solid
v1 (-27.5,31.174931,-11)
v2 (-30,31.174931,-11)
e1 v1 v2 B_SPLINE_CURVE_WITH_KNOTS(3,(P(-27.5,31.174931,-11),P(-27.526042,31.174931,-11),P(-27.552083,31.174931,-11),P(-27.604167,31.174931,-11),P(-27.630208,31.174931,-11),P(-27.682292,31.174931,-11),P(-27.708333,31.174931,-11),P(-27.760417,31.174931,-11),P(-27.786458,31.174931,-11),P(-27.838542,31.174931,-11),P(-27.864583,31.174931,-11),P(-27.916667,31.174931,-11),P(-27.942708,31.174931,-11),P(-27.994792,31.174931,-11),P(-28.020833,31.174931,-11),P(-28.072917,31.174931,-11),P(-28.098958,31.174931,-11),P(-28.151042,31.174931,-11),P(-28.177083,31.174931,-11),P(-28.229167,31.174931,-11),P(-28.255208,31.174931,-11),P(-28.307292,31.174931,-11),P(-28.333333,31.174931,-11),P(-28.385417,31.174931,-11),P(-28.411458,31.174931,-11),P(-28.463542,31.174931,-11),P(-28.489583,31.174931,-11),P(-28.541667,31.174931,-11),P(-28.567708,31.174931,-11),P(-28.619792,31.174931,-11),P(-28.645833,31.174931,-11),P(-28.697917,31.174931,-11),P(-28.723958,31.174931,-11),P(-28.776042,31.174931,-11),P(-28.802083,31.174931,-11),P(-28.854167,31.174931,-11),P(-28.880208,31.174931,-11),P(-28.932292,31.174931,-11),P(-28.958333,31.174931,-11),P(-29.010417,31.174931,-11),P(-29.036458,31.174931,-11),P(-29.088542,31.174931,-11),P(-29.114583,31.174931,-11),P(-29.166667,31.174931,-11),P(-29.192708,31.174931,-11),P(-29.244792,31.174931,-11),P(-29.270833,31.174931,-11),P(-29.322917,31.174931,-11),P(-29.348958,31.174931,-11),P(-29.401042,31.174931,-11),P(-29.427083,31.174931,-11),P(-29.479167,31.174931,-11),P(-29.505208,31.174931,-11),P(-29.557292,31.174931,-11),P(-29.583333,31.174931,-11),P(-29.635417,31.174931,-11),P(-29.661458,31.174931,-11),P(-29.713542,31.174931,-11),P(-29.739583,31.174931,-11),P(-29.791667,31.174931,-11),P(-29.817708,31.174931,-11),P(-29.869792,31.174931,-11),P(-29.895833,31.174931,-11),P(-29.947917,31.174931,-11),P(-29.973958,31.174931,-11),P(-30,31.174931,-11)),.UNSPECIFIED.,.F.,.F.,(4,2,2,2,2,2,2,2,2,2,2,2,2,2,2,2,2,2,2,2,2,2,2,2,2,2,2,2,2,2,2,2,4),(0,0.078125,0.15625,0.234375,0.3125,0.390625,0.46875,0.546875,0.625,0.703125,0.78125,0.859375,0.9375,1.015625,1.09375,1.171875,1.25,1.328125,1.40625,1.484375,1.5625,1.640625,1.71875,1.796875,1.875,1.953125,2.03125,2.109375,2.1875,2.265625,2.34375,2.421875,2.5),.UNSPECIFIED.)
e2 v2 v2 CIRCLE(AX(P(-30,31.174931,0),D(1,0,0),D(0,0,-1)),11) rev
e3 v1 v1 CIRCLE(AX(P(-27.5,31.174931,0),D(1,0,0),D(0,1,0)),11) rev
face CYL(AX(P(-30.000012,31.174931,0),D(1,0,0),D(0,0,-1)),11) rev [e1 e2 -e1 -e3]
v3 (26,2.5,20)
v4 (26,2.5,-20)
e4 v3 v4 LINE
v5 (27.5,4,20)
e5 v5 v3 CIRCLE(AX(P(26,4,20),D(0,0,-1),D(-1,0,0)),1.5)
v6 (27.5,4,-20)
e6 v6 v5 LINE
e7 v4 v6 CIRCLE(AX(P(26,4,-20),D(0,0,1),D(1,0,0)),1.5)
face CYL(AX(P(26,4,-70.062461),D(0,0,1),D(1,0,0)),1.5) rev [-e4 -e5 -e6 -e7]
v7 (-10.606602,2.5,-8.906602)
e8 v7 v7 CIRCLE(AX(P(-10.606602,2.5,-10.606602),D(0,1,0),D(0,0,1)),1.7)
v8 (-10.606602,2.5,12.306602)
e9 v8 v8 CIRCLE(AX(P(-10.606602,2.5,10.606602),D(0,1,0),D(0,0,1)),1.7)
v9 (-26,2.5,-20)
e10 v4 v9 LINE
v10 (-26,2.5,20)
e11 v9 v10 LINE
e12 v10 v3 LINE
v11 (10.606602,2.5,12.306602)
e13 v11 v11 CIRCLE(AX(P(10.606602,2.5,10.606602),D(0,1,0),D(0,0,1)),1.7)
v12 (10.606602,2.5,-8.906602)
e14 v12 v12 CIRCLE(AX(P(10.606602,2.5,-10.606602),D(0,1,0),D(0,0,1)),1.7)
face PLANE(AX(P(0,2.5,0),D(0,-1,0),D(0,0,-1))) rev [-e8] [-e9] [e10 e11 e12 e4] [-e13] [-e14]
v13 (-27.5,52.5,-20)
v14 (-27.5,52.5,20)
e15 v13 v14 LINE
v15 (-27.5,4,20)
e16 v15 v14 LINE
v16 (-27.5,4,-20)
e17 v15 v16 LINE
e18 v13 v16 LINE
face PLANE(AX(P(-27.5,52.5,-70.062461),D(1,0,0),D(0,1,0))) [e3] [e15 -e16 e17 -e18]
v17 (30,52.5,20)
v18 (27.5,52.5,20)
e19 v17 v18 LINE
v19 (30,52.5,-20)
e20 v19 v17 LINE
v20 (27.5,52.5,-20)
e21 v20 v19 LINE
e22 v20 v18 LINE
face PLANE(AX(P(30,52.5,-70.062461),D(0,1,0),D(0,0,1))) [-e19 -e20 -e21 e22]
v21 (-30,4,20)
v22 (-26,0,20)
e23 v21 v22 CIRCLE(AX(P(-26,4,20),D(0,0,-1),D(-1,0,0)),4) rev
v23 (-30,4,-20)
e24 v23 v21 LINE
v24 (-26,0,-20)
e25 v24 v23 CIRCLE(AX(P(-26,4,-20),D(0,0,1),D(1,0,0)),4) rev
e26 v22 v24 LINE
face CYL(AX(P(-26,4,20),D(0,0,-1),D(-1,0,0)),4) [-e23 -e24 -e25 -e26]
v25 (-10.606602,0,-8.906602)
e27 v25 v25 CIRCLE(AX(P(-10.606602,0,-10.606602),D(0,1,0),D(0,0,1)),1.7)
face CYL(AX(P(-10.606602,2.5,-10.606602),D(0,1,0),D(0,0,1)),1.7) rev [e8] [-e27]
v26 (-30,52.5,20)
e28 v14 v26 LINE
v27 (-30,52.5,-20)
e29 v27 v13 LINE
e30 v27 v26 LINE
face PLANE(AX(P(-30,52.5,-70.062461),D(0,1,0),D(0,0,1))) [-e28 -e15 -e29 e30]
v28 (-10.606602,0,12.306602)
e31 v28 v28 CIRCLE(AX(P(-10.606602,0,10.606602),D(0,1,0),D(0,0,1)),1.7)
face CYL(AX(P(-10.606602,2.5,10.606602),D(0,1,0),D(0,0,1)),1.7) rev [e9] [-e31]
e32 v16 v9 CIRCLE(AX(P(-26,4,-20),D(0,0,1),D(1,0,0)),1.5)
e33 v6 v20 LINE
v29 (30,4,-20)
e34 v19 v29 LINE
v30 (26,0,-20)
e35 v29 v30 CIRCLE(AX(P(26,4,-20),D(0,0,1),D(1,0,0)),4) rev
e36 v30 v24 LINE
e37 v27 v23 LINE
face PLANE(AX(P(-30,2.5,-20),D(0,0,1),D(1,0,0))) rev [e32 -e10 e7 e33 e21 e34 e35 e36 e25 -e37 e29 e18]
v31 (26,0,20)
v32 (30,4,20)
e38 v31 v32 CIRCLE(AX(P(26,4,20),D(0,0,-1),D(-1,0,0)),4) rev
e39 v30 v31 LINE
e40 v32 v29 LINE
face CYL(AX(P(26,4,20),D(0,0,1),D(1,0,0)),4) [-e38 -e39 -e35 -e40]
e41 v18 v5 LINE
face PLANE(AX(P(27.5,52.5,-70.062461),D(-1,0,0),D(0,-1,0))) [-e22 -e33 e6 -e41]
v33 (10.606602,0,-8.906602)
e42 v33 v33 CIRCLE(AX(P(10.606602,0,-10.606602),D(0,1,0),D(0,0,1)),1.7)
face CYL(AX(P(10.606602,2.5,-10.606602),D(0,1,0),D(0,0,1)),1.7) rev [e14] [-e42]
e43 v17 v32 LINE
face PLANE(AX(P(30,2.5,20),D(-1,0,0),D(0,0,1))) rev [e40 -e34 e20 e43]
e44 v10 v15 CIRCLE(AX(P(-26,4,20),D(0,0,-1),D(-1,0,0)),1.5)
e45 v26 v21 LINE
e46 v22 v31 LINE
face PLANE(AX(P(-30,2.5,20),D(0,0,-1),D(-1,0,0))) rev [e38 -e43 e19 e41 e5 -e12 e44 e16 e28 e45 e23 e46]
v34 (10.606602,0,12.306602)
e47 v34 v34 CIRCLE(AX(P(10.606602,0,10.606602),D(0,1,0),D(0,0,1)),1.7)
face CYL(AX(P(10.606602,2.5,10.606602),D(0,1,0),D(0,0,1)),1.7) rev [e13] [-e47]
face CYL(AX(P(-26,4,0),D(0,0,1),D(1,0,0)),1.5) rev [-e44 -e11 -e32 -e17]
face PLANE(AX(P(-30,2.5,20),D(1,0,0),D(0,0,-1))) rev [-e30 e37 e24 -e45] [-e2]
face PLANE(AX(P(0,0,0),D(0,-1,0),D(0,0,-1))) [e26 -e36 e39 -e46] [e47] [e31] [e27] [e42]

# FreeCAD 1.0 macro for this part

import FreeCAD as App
import Part
import Sketcher
Q = App.Units.Quantity


def edges_at(feature, points):
    """Names of the edges that pass closest to the given points."""
    edges = feature.Shape.Edges
    near = lambda p: min(range(len(edges)), key=lambda i: edges[i].distToShape(Part.Vertex(*p))[0])
    return sorted({f"Edge{near(p) + 1}" for p in points})

doc = App.newDocument("Part")
body = doc.addObject("PartDesign::Body", "Body")

# Sketch on XZ plane
sketch1 = body.newObject("Sketcher::SketchObject", "Sketch")
sketch1.AttachmentSupport = (doc.getObject("XZ_Plane"), [""])
sketch1.MapMode = "FlatFace"
sketch1.addGeometry(Part.LineSegment(App.Vector(-30, -20, 0), App.Vector(-30, 20, 0)), False)
sketch1.addGeometry(Part.LineSegment(App.Vector(-30, 20, 0), App.Vector(30, 20, 0)), False)
sketch1.addGeometry(Part.LineSegment(App.Vector(30, 20, 0), App.Vector(30, -20, 0)), False)
sketch1.addGeometry(Part.LineSegment(App.Vector(30, -20, 0), App.Vector(-30, -20, 0)), False)
sketch1.addConstraint(Sketcher.Constraint("Coincident", 0, 2, 1, 1))
sketch1.addConstraint(Sketcher.Constraint("Coincident", 1, 2, 2, 1))
sketch1.addConstraint(Sketcher.Constraint("Coincident", 2, 2, 3, 1))
sketch1.addConstraint(Sketcher.Constraint("Coincident", 3, 2, 0, 1))
sketch1.addConstraint(Sketcher.Constraint("Vertical", 0))
sketch1.addConstraint(Sketcher.Constraint("Horizontal", 1))
sketch1.addConstraint(Sketcher.Constraint("Vertical", 2))
sketch1.addConstraint(Sketcher.Constraint("Horizontal", 3))
sketch1.addConstraint(Sketcher.Constraint("Symmetric", 0, 2, 2, 2, -1, 1))
sketch1.addConstraint(Sketcher.Constraint("DistanceX", 1, 1, 1, 2, Q("60 mm")))
sketch1.addConstraint(Sketcher.Constraint("DistanceY", 0, 1, 0, 2, Q("40 mm")))
pad1 = body.newObject("PartDesign::Pad", "Pad")
pad1.Profile = sketch1
pad1.Length = 2.5
pad1.Reversed = True

# Sketch on XZ plane
sketch2 = body.newObject("Sketcher::SketchObject", "Sketch001")
sketch2.AttachmentSupport = (doc.getObject("XZ_Plane"), [""])
sketch2.MapMode = "FlatFace"
sketch2.AttachmentOffset = App.Placement(App.Vector(0, 0, -2.5), App.Rotation())
sketch2.addGeometry(Part.Circle(App.Vector(-10.6, -10.6, 0), App.Vector(0, 0, 1), 1.7), False)
sketch2.addGeometry(Part.Circle(App.Vector(10.6, -10.6, 0), App.Vector(0, 0, 1), 1.7), False)
sketch2.addGeometry(Part.Circle(App.Vector(10.6, 10.6, 0), App.Vector(0, 0, 1), 1.7), False)
sketch2.addGeometry(Part.Circle(App.Vector(-10.6, 10.6, 0), App.Vector(0, 0, 1), 1.7), False)
sketch2.addConstraint(Sketcher.Constraint("Equal", 0, 1))
sketch2.addConstraint(Sketcher.Constraint("Equal", 1, 2))
sketch2.addConstraint(Sketcher.Constraint("Equal", 2, 3))
sketch2.addConstraint(Sketcher.Constraint("Symmetric", 0, 3, 2, 3, -1, 1))
sketch2.addConstraint(Sketcher.Constraint("Symmetric", 1, 3, 3, 3, -1, 1))
sketch2.addConstraint(Sketcher.Constraint("Symmetric", 0, 3, 1, 3, -2))
sketch2.addConstraint(Sketcher.Constraint("Diameter", 0, Q("3.4 mm")))
sketch2.addConstraint(Sketcher.Constraint("DistanceX", 0, 3, -1, 1, Q("10.606602 mm")))
sketch2.addConstraint(Sketcher.Constraint("DistanceY", 0, 3, -1, 1, Q("10.606602 mm")))
doc.recompute()
hole = body.newObject("PartDesign::Hole", "Hole")
hole.Profile = sketch2
hole.ThreadType = "None"
hole.Diameter = 3.4
hole.DepthType = "ThroughAll"
hole.Reversed = True

# Sketch on XY plane
sketch3 = body.newObject("Sketcher::SketchObject", "Sketch002")
sketch3.AttachmentSupport = (doc.getObject("XY_Plane"), [""])
sketch3.MapMode = "FlatFace"
sketch3.AttachmentOffset = App.Placement(App.Vector(0, 0, 20), App.Rotation())
sketch3.addGeometry(Part.LineSegment(App.Vector(-30, 52.5, 0), App.Vector(-30, 2.5, 0)), False)
sketch3.addGeometry(Part.LineSegment(App.Vector(-30, 2.5, 0), App.Vector(-27.5, 2.5, 0)), False)
sketch3.addGeometry(Part.LineSegment(App.Vector(-27.5, 2.5, 0), App.Vector(-27.5, 52.5, 0)), False)
sketch3.addGeometry(Part.LineSegment(App.Vector(-27.5, 52.5, 0), App.Vector(-30, 52.5, 0)), False)
sketch3.addGeometry(Part.LineSegment(App.Vector(27.5, 52.5, 0), App.Vector(27.5, 2.5, 0)), False)
sketch3.addGeometry(Part.LineSegment(App.Vector(27.5, 2.5, 0), App.Vector(30, 2.5, 0)), False)
sketch3.addGeometry(Part.LineSegment(App.Vector(30, 2.5, 0), App.Vector(30, 52.5, 0)), False)
sketch3.addGeometry(Part.LineSegment(App.Vector(30, 52.5, 0), App.Vector(27.5, 52.5, 0)), False)
sketch3.addConstraint(Sketcher.Constraint("Coincident", 0, 2, 1, 1))
sketch3.addConstraint(Sketcher.Constraint("Coincident", 1, 2, 2, 1))
sketch3.addConstraint(Sketcher.Constraint("Coincident", 2, 2, 3, 1))
sketch3.addConstraint(Sketcher.Constraint("Coincident", 3, 2, 0, 1))
sketch3.addConstraint(Sketcher.Constraint("Coincident", 4, 2, 5, 1))
sketch3.addConstraint(Sketcher.Constraint("Coincident", 5, 2, 6, 1))
sketch3.addConstraint(Sketcher.Constraint("Coincident", 6, 2, 7, 1))
sketch3.addConstraint(Sketcher.Constraint("Coincident", 7, 2, 4, 1))
sketch3.addConstraint(Sketcher.Constraint("Vertical", 0))
sketch3.addConstraint(Sketcher.Constraint("Horizontal", 1))
sketch3.addConstraint(Sketcher.Constraint("Vertical", 2))
sketch3.addConstraint(Sketcher.Constraint("Horizontal", 3))
sketch3.addConstraint(Sketcher.Constraint("Vertical", 4))
sketch3.addConstraint(Sketcher.Constraint("Horizontal", 5))
sketch3.addConstraint(Sketcher.Constraint("Vertical", 6))
sketch3.addConstraint(Sketcher.Constraint("Horizontal", 7))
sketch3.addConstraint(Sketcher.Constraint("Symmetric", 1, 2, 4, 2, -2))
sketch3.addConstraint(Sketcher.Constraint("Symmetric", 3, 2, 6, 2, -2))
sketch3.addConstraint(Sketcher.Constraint("DistanceY", 0, 2, 0, 1, Q("50 mm")))
sketch3.addConstraint(Sketcher.Constraint("DistanceX", 1, 1, 1, 2, Q("2.5 mm")))
sketch3.addConstraint(Sketcher.Constraint("DistanceX", 0, 2, -1, 1, Q("30 mm")))
sketch3.addConstraint(Sketcher.Constraint("DistanceY", -1, 1, 0, 2, Q("2.5 mm")))
pad2 = body.newObject("PartDesign::Pad", "Pad001")
pad2.Profile = sketch3
pad2.Length = 40
pad2.Reversed = True
doc.recompute()

fillet = body.newObject("PartDesign::Fillet", "Fillet")
fillet.Base = (pad2, edges_at(pad2, [(-30, 0, 0), (30, 0, 0)]))
fillet.Radius = 4
doc.recompute()

fillet2 = body.newObject("PartDesign::Fillet", "Fillet001")
fillet2.Base = (fillet, edges_at(fillet, [(-27.5, 2.5, 0), (27.5, 2.5, 0)]))
fillet2.Radius = 1.5

# Sketch on YZ plane
sketch4 = body.newObject("Sketcher::SketchObject", "Sketch003")
sketch4.AttachmentSupport = (doc.getObject("YZ_Plane"), [""])
sketch4.MapMode = "FlatFace"
sketch4.AttachmentOffset = App.Placement(App.Vector(0, 0, -30), App.Rotation())
sketch4.addGeometry(Part.Circle(App.Vector(31, 0, 0), App.Vector(0, 0, 1), 11), False)
sketch4.addConstraint(Sketcher.Constraint("PointOnObject", 0, 3, -1))
sketch4.addConstraint(Sketcher.Constraint("Diameter", 0, Q("22 mm")))
sketch4.addConstraint(Sketcher.Constraint("DistanceX", -1, 1, 0, 3, Q("31.174931 mm")))
pocket1 = body.newObject("PartDesign::Pocket", "Pocket")
pocket1.Profile = sketch4
pocket1.Type = "UpToFirst"
pocket1.Reversed = True

# Sketch on YZ plane
sketch5 = body.newObject("Sketcher::SketchObject", "Sketch004")
sketch5.AttachmentSupport = (doc.getObject("YZ_Plane"), [""])
sketch5.MapMode = "FlatFace"
sketch5.AttachmentOffset = App.Placement(App.Vector(0, 0, -30), App.Rotation())
sketch5.addGeometry(Part.Circle(App.Vector(31, 0, 0), App.Vector(0, 0, 1), 11), False)
sketch5.addConstraint(Sketcher.Constraint("PointOnObject", 0, 3, -1))
sketch5.addConstraint(Sketcher.Constraint("Diameter", 0, Q("22 mm")))
sketch5.addConstraint(Sketcher.Constraint("DistanceX", -1, 1, 0, 3, Q("31.174931 mm")))
pocket2 = body.newObject("PartDesign::Pocket", "Pocket001")
pocket2.Profile = sketch5
pocket2.Length = 83.196411

doc.recompute()
